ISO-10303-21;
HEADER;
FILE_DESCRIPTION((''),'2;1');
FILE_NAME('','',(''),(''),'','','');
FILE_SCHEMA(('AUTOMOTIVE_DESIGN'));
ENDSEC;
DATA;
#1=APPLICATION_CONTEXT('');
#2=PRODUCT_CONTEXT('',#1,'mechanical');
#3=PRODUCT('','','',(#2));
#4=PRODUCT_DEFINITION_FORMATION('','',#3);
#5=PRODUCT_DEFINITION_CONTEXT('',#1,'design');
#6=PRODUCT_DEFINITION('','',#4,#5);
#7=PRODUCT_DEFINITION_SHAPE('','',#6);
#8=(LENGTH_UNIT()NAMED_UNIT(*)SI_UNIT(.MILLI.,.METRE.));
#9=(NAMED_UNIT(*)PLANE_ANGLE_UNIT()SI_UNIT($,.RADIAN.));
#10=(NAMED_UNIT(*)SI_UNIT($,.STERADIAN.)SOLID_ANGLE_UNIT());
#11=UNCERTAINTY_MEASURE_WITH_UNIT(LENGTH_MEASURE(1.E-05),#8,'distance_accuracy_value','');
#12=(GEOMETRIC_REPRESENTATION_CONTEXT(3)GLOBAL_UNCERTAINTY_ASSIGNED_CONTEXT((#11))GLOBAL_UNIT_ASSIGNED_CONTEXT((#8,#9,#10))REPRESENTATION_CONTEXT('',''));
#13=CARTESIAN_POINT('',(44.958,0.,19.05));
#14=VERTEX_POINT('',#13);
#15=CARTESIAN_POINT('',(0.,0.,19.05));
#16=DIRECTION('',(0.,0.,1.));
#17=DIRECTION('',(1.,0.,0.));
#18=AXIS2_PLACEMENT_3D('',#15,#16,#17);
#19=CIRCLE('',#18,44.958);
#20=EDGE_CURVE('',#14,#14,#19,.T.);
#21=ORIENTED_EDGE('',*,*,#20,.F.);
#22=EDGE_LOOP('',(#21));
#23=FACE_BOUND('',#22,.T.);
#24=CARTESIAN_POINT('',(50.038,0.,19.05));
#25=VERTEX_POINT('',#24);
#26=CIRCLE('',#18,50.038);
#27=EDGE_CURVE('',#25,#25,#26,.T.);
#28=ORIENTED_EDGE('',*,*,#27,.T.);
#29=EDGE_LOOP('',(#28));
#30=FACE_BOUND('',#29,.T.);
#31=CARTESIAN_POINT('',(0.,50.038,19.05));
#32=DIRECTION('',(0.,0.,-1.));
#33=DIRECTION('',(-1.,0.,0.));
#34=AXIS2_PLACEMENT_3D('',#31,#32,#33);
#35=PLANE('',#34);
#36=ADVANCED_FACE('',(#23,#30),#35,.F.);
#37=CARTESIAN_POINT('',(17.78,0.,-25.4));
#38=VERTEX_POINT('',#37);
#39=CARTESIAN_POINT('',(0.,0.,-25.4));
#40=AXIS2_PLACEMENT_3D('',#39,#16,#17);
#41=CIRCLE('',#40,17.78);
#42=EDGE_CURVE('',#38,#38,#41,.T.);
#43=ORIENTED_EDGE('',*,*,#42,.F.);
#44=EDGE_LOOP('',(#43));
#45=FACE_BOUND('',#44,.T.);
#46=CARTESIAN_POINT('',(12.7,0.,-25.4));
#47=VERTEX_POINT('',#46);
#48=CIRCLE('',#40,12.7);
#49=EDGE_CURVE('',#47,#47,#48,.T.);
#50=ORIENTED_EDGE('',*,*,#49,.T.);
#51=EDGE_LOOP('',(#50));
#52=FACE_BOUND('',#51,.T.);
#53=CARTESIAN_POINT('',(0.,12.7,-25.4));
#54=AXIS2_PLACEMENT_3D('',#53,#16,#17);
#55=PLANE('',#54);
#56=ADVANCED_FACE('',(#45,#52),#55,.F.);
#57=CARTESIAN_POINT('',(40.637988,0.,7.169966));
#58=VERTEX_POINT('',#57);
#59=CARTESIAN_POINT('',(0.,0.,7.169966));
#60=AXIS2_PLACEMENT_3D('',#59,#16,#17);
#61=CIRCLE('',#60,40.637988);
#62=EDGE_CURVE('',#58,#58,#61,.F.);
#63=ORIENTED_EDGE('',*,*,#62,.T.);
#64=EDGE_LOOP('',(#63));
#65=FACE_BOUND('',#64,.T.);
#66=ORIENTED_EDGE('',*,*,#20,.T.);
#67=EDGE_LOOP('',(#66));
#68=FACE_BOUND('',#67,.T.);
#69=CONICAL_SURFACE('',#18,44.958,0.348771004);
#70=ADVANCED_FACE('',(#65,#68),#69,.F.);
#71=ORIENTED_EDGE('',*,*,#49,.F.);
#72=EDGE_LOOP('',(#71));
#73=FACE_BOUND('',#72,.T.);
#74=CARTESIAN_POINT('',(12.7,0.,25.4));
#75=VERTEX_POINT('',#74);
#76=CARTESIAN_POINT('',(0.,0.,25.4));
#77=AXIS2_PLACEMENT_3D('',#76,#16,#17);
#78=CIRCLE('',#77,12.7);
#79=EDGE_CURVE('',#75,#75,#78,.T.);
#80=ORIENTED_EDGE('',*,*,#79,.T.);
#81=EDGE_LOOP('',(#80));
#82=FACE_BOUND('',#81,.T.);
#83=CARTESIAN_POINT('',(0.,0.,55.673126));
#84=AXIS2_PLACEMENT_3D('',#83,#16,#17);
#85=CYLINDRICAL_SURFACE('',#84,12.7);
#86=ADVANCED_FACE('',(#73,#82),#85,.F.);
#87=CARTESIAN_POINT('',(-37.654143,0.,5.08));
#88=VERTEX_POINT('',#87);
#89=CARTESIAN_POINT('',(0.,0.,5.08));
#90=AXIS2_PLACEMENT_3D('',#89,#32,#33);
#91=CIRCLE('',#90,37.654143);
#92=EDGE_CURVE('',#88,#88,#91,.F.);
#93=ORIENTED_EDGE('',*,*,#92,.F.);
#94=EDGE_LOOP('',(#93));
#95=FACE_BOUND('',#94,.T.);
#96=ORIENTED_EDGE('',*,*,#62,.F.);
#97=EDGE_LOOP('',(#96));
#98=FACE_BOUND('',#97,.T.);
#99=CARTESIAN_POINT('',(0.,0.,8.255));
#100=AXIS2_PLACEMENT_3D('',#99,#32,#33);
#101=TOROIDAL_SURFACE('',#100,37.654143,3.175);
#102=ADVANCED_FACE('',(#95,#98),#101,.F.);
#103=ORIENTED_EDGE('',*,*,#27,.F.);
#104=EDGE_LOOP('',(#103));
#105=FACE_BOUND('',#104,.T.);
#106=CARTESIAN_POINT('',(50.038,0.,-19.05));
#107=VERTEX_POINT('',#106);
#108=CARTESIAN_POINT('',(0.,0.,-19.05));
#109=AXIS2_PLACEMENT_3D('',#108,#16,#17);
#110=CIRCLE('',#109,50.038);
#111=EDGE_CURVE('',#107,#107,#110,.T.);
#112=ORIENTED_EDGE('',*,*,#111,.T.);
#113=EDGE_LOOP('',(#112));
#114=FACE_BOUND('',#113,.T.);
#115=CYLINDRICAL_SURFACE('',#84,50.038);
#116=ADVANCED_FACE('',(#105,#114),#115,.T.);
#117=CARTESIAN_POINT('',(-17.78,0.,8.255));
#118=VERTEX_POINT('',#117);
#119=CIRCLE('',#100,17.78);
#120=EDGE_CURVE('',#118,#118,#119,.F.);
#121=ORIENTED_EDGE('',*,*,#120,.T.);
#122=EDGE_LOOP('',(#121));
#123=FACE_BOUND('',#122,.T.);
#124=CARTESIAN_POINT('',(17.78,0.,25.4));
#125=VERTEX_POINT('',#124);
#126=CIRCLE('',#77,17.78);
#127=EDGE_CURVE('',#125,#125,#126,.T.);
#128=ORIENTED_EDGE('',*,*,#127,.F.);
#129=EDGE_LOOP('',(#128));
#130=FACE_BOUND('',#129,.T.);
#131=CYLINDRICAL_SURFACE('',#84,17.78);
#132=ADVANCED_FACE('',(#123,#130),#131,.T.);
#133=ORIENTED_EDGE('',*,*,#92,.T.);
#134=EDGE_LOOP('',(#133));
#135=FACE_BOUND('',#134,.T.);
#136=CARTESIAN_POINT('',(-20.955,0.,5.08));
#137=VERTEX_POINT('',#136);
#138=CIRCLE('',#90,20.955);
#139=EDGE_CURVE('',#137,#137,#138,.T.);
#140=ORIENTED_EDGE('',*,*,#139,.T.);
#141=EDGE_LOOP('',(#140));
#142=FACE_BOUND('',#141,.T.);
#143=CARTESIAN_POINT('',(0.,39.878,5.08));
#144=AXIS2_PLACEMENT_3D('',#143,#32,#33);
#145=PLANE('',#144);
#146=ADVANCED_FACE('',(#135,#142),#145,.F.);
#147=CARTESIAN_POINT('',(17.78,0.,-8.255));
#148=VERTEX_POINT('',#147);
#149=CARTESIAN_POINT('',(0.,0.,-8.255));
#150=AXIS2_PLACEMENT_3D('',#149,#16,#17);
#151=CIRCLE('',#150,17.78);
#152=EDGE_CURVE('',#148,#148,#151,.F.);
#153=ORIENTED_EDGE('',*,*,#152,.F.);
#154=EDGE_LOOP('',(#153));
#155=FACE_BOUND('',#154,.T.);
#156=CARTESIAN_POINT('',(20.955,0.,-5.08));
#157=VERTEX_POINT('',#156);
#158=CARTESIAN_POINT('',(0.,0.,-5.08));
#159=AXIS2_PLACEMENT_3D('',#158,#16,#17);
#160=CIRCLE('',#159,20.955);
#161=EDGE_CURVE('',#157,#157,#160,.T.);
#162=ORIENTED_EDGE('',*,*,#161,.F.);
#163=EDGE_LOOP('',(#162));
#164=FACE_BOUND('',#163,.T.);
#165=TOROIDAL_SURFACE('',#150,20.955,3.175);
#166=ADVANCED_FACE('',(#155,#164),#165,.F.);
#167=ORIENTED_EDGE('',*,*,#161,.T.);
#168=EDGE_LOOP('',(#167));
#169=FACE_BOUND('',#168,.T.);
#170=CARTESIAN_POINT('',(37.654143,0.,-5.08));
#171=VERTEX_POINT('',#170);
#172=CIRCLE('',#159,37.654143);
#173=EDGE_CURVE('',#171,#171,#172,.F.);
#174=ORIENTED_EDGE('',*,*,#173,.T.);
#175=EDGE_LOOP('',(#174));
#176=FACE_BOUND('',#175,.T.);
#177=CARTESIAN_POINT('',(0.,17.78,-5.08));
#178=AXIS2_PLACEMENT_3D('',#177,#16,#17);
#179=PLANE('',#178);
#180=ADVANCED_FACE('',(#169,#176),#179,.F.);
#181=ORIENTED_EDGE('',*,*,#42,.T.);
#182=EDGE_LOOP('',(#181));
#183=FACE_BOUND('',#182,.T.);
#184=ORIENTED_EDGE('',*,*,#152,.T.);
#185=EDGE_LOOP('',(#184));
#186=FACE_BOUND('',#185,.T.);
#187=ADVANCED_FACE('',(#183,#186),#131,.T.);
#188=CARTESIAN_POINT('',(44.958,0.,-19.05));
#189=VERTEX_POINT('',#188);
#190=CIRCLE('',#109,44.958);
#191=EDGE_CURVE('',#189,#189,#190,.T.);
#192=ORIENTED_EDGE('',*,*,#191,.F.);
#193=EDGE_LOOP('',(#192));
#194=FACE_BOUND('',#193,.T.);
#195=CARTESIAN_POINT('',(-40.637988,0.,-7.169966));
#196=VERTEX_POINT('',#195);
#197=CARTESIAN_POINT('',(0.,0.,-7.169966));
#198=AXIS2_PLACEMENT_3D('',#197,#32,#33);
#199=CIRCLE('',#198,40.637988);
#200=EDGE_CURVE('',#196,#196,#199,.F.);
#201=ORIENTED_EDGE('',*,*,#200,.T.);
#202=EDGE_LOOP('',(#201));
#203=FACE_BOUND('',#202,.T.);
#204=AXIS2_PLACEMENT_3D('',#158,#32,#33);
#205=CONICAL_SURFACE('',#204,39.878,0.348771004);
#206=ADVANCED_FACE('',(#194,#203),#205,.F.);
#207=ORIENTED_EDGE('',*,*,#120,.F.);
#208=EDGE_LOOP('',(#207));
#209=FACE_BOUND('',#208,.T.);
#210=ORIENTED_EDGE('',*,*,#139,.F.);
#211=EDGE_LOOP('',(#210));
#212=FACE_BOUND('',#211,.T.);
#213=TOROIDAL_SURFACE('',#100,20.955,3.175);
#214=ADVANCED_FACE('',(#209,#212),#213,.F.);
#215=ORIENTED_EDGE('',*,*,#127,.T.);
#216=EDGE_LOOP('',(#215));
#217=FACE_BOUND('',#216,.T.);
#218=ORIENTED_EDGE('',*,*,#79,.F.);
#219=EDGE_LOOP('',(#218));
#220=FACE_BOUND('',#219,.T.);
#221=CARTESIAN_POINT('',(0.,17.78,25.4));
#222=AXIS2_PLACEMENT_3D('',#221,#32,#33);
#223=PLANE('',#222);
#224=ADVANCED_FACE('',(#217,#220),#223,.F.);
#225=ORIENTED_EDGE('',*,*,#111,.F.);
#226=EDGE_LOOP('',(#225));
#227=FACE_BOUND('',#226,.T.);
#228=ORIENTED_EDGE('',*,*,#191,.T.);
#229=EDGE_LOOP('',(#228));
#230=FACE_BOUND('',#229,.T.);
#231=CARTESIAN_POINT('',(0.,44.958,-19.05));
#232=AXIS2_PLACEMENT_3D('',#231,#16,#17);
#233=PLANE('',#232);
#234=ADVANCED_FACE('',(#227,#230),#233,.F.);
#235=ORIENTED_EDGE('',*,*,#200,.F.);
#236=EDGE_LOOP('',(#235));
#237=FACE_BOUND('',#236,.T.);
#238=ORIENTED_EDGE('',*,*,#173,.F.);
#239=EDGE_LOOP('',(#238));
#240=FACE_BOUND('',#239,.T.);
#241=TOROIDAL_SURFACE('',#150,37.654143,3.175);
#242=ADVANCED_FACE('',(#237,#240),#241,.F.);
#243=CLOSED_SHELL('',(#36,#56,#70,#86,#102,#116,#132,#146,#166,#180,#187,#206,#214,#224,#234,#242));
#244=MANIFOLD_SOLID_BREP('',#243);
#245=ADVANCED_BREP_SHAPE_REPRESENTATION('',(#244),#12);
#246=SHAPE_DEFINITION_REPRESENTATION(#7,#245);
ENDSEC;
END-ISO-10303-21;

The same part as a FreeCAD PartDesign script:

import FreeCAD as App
import Part
import Sketcher
Q = App.Units.Quantity


def edges_at(feature, points):
    """Names of the edges that pass closest to the given points."""
    edges = feature.Shape.Edges
    near = lambda p: min(range(len(edges)), key=lambda i: edges[i].distToShape(Part.Vertex(*p))[0])
    return sorted({f"Edge{near(p) + 1}" for p in points})


def add_polygon(sketch, points):
    """Adds a closed chain of lines whose ends are joined by coincident constraints."""
    first, n = sketch.GeometryCount, len(points)
    for a, b in zip(points, points[1:] + points[:1]):
        sketch.addGeometry(Part.LineSegment(App.Vector(*a, 0), App.Vector(*b, 0)), False)
    for i in range(n):
        sketch.addConstraint(Sketcher.Constraint("Coincident", first + i, 2, first + (i + 1) % n, 1))

doc = App.newDocument("Part")
body = doc.addObject("PartDesign::Body", "Body")

sketch1 = doc.addObject("Sketcher::SketchObject", "Sketch")
body.addObject(sketch1)
sketch1.AttachmentSupport = (doc.YZ_Plane, [""])
sketch1.MapMode = "FlatFace"
add_polygon(sketch1, [(13, 25), (13, -25), (18, -25), (18, -5), (40, -5), (45, -19), (50, -19), (50, 19), (45, 19), (40, 5), (18, 5), (18, 25)])
sketch1.addConstraint([
    Sketcher.Constraint("Vertical", 0),
    Sketcher.Constraint("Horizontal", 1),
    Sketcher.Constraint("Vertical", 2),
    Sketcher.Constraint("Horizontal", 3),
    Sketcher.Constraint("Horizontal", 5),
    Sketcher.Constraint("Vertical", 6),
    Sketcher.Constraint("Horizontal", 7),
    Sketcher.Constraint("Horizontal", 9),
    Sketcher.Constraint("Vertical", 10),
    Sketcher.Constraint("Horizontal", 11),
    Sketcher.Constraint("Symmetric", 4, 2, 7, 2, -1),
    Sketcher.Constraint("Symmetric", 3, 2, 8, 2, -1),
    Sketcher.Constraint("Symmetric", 1, 2, 10, 2, -1),
    Sketcher.Constraint("Equal", 1, 5),
    Sketcher.Constraint("DistanceY", 0, 2, 0, 1, Q("2 in")),
    Sketcher.Constraint("DistanceX", 1, 1, 1, 2, Q("0.2 in")),
    Sketcher.Constraint("DistanceY", 2, 1, 2, 2, Q("0.8 in")),
    Sketcher.Constraint("DistanceY", 6, 1, 6, 2, Q("1.5 in")),
    Sketcher.Constraint("DistanceX", 3, 1, 3, 2, Q("0.87 in")),
    Sketcher.Constraint("DistanceX", -1, 1, 0, 2, Q("0.5 in")),
    Sketcher.Constraint("DistanceX", 3, 2, 4, 2, Q("0.2 in")),
])
revolution = doc.addObject("PartDesign::Revolution", "Revolution")
body.addObject(revolution)
revolution.Profile = sketch1
revolution.ReferenceAxis = (sketch1, ["V_Axis"])
revolution.Angle = 360
doc.recompute()

fillet = doc.addObject("PartDesign::Fillet", "Fillet")
body.addObject(fillet)
fillet.Base = (revolution, edges_at(revolution, [(0, -17.78, 5.08)]))
fillet.Radius = Q("0.125 in")
doc.recompute()

fillet2 = doc.addObject("PartDesign::Fillet", "Fillet001")
body.addObject(fillet2)
fillet2.Base = (fillet, edges_at(fillet, [(0, -39.878, 5.08)]))
fillet2.Radius = Q("0.125 in")
doc.recompute()

fillet3 = doc.addObject("PartDesign::Fillet", "Fillet002")
body.addObject(fillet3)
fillet3.Base = (fillet2, edges_at(fillet2, [(0, -17.78, -5.08)]))
fillet3.Radius = Q("0.125 in")
doc.recompute()

fillet4 = doc.addObject("PartDesign::Fillet", "Fillet003")
body.addObject(fillet4)
fillet4.Base = (fillet3, edges_at(fillet3, [(0, -39.878, -5.08)]))
fillet4.Radius = Q("0.125 in")

doc.recompute()
